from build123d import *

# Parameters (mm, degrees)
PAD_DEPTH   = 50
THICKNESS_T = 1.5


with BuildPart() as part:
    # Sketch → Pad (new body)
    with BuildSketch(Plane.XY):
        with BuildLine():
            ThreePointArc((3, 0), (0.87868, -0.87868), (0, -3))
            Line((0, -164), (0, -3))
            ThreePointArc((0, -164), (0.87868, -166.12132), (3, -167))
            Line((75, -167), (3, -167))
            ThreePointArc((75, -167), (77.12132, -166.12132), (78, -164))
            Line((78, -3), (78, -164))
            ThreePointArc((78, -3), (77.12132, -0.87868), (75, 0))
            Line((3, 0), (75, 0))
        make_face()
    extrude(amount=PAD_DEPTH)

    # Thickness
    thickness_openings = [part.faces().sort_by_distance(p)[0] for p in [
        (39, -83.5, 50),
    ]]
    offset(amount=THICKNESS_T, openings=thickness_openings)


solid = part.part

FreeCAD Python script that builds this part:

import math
import FreeCAD as App
import Part
import Sketcher


def faces_at(feature, points):
    """Names of the faces that lie closest to the given points."""
    faces = feature.Shape.Faces
    near = lambda p: min(range(len(faces)), key=lambda i: faces[i].distToShape(Part.Vertex(*p))[0])
    return sorted({f"Face{near(p) + 1}" for p in points})

doc = App.newDocument("Part")
params = doc.addObject("Spreadsheet::Sheet", "Params")
for row, (alias, value) in enumerate([
    ("sketch1_radius", "3.000001 mm"),
    ("sketch1_width", "72 mm"),
    ("sketch1_height", "161 mm"),
    ("pad1_length", "50 mm"),
    ("thickness_wall", "1.5 mm"),
], start=1):
    params.set(f"A{row}", alias)
    params.set(f"B{row}", "=" + value)
    params.setAlias(f"B{row}", alias)

body = doc.addObject("PartDesign::Body", "Body")

# Sketch on XY plane
sketch1 = body.newObject("Sketcher::SketchObject", "Sketch")
sketch1.AttachmentSupport = (doc.getObject("XY_Plane"), [""])
sketch1.MapMode = "FlatFace"
sketch1.addGeometry([
    Part.ArcOfCircle(Part.Circle(App.Vector(3, -3, 0), App.Vector(0, 0, 1), 3), math.radians(90), math.radians(180)),  # 0
    Part.LineSegment(App.Vector(0, -3, 0), App.Vector(0, -164, 0)),  # 1
    Part.ArcOfCircle(Part.Circle(App.Vector(3, -164, 0), App.Vector(0, 0, 1), 3), math.radians(-180), math.radians(-90)),  # 2
    Part.LineSegment(App.Vector(3, -167, 0), App.Vector(75, -167, 0)),  # 3
    Part.ArcOfCircle(Part.Circle(App.Vector(75, -164, 0), App.Vector(0, 0, 1), 3), math.radians(-90), math.radians(0)),  # 4
    Part.LineSegment(App.Vector(78, -164, 0), App.Vector(78, -3, 0)),  # 5
    Part.ArcOfCircle(Part.Circle(App.Vector(75, -3, 0), App.Vector(0, 0, 1), 3), math.radians(0), math.radians(90)),  # 6
    Part.LineSegment(App.Vector(75, 0, 0), App.Vector(3, 0, 0)),  # 7
], False)
sketch1.addConstraint([
    Sketcher.Constraint("Tangent", 0, 2, 1, 1),
    Sketcher.Constraint("Tangent", 1, 2, 2, 1),
    Sketcher.Constraint("Tangent", 2, 2, 3, 1),
    Sketcher.Constraint("Tangent", 3, 2, 4, 1),
    Sketcher.Constraint("Tangent", 4, 2, 5, 1),
    Sketcher.Constraint("Tangent", 5, 2, 6, 1),
    Sketcher.Constraint("Tangent", 6, 2, 7, 1),
    Sketcher.Constraint("Tangent", 7, 2, 0, 1),
    Sketcher.Constraint("Vertical", 1),
    Sketcher.Constraint("Horizontal", 3),
    Sketcher.Constraint("Vertical", 5),
    Sketcher.Constraint("Horizontal", 7),
    Sketcher.Constraint("Equal", 0, 2),
    Sketcher.Constraint("Equal", 2, 4),
    Sketcher.Constraint("Equal", 4, 6),
    Sketcher.Constraint("PointOnObject", 0, 2, -2),
    Sketcher.Constraint("PointOnObject", 6, 2, -1),
    Sketcher.Constraint("Radius", 0, 3.000001),
    Sketcher.Constraint("DistanceX", 3, 1, 3, 2, 72.0),
    Sketcher.Constraint("DistanceY", 1, 2, 1, 1, 161.0),
])
sketch1.setExpression("Constraints[17]", "Params.sketch1_radius")
sketch1.setExpression("Constraints[18]", "Params.sketch1_width")
sketch1.setExpression("Constraints[19]", "Params.sketch1_height")
pad1 = body.newObject("PartDesign::Pad", "Pad")
pad1.Profile = sketch1
pad1.setExpression("Length", "Params.pad1_length")
doc.recompute()

thickness = body.newObject("PartDesign::Thickness", "Thickness")
thickness.Base = (pad1, faces_at(pad1, [(39, -83.5, 50)]))
thickness.setExpression("Value", "Params.thickness_wall")
thickness.Reversed = False
thickness.Join = "Arc"

doc.recompute()
